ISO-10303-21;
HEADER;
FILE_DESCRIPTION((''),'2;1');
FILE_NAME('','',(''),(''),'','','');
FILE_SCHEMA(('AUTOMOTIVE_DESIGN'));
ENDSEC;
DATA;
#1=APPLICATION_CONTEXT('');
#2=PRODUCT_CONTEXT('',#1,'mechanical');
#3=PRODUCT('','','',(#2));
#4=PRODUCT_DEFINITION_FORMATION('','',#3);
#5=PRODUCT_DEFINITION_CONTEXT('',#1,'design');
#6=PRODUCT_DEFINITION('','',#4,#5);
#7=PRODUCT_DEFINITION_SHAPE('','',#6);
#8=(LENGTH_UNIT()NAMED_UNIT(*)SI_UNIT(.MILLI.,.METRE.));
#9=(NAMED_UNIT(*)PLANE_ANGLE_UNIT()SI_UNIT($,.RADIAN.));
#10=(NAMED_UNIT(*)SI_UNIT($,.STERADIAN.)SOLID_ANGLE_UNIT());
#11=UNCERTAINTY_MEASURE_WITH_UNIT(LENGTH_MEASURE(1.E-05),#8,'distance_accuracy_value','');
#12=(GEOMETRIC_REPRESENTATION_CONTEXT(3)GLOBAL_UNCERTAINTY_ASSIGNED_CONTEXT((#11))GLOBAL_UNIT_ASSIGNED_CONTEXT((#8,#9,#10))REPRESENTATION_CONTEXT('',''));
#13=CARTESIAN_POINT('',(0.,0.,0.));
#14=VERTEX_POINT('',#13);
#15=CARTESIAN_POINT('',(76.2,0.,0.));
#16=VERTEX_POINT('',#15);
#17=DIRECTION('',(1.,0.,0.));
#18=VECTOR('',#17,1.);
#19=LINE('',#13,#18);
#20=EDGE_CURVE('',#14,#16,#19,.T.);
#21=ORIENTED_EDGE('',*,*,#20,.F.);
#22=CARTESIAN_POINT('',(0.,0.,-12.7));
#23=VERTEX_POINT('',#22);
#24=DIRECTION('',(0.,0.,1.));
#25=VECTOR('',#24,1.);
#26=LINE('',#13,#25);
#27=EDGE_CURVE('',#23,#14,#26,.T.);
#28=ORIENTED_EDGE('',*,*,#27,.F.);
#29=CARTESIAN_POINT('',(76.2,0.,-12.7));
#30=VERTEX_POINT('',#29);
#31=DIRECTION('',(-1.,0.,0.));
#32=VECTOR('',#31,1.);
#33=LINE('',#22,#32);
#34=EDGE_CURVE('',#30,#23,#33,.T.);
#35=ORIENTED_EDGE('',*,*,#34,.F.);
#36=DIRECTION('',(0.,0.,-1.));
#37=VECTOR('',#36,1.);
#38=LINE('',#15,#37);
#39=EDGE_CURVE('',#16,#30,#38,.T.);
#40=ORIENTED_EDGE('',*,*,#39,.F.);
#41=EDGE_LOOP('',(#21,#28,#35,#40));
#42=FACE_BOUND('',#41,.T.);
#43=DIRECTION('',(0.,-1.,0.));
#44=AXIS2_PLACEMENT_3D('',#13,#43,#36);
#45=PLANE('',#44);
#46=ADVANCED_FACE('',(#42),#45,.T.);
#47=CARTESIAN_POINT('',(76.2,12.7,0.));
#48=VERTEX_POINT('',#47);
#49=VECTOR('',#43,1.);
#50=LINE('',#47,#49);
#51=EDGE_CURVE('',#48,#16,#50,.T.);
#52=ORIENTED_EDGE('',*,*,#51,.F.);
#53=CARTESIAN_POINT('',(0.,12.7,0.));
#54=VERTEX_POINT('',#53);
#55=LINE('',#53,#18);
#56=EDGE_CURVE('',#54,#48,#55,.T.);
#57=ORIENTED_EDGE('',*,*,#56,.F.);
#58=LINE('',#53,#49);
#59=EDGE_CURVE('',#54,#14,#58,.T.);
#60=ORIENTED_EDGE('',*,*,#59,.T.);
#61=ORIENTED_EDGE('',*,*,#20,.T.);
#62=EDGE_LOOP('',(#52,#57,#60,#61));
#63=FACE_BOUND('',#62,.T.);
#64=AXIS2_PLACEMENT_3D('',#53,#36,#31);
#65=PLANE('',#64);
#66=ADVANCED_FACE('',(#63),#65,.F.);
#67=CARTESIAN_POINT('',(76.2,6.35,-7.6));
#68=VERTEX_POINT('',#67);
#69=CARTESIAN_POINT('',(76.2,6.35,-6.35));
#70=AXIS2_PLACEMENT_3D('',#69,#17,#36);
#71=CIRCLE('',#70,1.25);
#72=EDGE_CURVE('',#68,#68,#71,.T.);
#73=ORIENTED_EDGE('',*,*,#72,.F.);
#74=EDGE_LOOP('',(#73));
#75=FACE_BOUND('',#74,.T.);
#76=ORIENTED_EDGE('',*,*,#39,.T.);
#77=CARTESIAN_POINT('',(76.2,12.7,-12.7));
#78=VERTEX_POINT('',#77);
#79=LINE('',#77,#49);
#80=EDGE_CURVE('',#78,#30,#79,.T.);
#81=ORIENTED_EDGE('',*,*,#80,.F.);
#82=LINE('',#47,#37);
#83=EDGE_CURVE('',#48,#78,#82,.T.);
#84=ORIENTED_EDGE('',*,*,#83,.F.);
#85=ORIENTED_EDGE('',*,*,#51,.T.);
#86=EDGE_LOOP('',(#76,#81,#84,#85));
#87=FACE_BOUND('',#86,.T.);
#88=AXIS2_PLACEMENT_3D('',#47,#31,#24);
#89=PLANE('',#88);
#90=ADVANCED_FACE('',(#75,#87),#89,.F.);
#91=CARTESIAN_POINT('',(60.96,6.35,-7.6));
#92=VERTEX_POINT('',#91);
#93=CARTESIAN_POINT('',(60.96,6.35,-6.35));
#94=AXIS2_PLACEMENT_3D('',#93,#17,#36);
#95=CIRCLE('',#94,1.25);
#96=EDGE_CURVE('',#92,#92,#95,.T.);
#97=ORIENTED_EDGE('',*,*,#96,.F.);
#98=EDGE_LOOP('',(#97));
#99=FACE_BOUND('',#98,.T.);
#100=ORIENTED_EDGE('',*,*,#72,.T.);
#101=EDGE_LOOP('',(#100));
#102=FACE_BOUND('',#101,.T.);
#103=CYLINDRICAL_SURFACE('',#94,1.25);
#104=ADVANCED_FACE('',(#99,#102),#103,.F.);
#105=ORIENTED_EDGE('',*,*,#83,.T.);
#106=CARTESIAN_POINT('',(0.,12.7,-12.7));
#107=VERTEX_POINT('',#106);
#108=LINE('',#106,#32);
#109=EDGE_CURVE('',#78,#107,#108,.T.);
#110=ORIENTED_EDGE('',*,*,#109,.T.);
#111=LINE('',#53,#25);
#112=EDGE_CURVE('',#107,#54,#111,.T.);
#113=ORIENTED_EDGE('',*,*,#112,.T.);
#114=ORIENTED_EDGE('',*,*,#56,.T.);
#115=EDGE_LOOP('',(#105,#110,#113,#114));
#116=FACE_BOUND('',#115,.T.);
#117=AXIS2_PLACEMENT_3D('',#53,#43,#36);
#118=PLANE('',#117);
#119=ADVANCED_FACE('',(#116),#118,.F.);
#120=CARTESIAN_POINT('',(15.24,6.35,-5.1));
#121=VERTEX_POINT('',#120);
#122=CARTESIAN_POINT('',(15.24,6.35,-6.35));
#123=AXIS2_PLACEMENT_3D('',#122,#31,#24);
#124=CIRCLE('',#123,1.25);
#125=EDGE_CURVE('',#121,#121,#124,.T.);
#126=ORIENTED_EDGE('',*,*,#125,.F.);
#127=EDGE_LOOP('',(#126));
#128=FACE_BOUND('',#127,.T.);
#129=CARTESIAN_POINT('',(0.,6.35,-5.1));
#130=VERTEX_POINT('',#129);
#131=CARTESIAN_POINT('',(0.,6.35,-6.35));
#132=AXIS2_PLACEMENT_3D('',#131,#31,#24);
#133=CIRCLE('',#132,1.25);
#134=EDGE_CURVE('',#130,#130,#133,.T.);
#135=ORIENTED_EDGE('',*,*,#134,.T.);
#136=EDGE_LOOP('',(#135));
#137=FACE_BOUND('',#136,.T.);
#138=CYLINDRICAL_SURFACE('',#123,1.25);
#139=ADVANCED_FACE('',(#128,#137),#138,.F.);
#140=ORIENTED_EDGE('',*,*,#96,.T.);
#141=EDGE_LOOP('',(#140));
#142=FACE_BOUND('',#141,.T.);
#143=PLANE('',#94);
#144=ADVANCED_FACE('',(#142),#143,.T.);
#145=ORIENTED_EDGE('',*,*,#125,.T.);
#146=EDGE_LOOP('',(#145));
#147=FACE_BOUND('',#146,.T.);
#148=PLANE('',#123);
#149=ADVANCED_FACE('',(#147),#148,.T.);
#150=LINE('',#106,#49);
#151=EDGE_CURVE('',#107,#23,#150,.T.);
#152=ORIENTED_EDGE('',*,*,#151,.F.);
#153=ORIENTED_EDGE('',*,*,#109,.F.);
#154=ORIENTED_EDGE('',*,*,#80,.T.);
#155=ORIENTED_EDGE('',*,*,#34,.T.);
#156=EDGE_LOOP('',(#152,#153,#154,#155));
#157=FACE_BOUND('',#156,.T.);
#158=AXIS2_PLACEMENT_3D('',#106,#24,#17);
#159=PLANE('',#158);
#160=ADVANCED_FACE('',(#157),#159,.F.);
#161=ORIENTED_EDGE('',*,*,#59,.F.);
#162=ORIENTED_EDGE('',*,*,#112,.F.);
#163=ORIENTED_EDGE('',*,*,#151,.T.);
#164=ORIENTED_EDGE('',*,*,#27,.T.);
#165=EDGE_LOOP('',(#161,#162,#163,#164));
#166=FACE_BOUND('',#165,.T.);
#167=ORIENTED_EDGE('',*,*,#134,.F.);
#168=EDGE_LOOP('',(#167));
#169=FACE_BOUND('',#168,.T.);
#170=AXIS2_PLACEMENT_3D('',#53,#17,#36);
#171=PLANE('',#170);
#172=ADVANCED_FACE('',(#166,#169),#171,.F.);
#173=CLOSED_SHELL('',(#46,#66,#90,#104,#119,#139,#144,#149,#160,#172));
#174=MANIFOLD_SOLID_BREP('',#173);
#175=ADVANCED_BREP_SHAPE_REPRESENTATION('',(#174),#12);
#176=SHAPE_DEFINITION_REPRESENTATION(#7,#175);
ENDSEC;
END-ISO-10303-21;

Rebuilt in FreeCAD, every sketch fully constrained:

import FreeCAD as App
import Part
import Sketcher
from FreeCAD import Vector
Q = App.Units.Quantity

doc = App.newDocument("Part")
body = doc.addObject("PartDesign::Body", "Body")

# Sketch on XZ plane
sketch1 = body.newObject("Sketcher::SketchObject", "Sketch")
sketch1.AttachmentSupport = (doc.getObject("XZ_Plane"), [""])
sketch1.MapMode = "FlatFace"
sketch1.addGeometry([
    Part.LineSegment(Vector(0, -13, 0), Vector(0, 0, 0)),
    Part.LineSegment(Vector(0, 0, 0), Vector(76, 0, 0)),
    Part.LineSegment(Vector(76, 0, 0), Vector(76, -13, 0)),
    Part.LineSegment(Vector(76, -13, 0), Vector(0, -13, 0)),
], False)
sketch1.addConstraint([
    Sketcher.Constraint("Coincident", 0, 2, 1, 1),
    Sketcher.Constraint("Coincident", 1, 2, 2, 1),
    Sketcher.Constraint("Coincident", 2, 2, 3, 1),
    Sketcher.Constraint("Coincident", 3, 2, 0, 1),
    Sketcher.Constraint("Vertical", 0),
    Sketcher.Constraint("Horizontal", 1),
    Sketcher.Constraint("Vertical", 2),
    Sketcher.Constraint("Horizontal", 3),
    Sketcher.Constraint("Coincident", 0, 2, -1, 1),
    Sketcher.Constraint("DistanceX", 1, 1, 1, 2, Q("3 in")),
    Sketcher.Constraint("DistanceY", 0, 1, 0, 2, Q("0.5 in")),
])
pad1 = body.newObject("PartDesign::Pad", "Pad")
pad1.Profile = sketch1
pad1.Length = Q("0.5 in")
pad1.Reversed = True

# Sketch on YZ plane
sketch2 = body.newObject("Sketcher::SketchObject", "Sketch001")
sketch2.AttachmentSupport = (doc.getObject("YZ_Plane"), [""])
sketch2.MapMode = "FlatFace"
sketch2.addGeometry(Part.Circle(Vector(6.3, -6.3, 0), Vector(0, 0, 1), 1.2), False)
sketch2.addConstraint([
    Sketcher.Constraint("Diameter", 0, Q("2.5 mm")),
    Sketcher.Constraint("DistanceX", -1, 1, 0, 3, Q("0.25 in")),
    Sketcher.Constraint("DistanceY", 0, 3, -1, 1, Q("0.25 in")),
])
pocket1 = body.newObject("PartDesign::Pocket", "Pocket")
pocket1.Profile = sketch2
pocket1.Length = Q("0.6 in")
pocket1.Reversed = True

# Sketch on YZ plane
sketch3 = body.newObject("Sketcher::SketchObject", "Sketch002")
sketch3.AttachmentSupport = (doc.getObject("YZ_Plane"), [""])
sketch3.MapMode = "FlatFace"
sketch3.AttachmentOffset = App.Placement(Vector(0, 0, 2.4 * 25.4), App.Rotation())
sketch3.addGeometry(Part.Circle(Vector(6.3, -6.3, 0), Vector(0, 0, 1), 1.2), False)
sketch3.addConstraint([
    Sketcher.Constraint("Diameter", 0, Q("2.5 mm")),
    Sketcher.Constraint("DistanceX", -1, 1, 0, 3, Q("0.25 in")),
    Sketcher.Constraint("DistanceY", 0, 3, -1, 1, Q("0.25 in")),
])
pocket2 = body.newObject("PartDesign::Pocket", "Pocket001")
pocket2.Profile = sketch3
pocket2.Length = Q("0.6 in")
pocket2.Reversed = True

doc.recompute()
